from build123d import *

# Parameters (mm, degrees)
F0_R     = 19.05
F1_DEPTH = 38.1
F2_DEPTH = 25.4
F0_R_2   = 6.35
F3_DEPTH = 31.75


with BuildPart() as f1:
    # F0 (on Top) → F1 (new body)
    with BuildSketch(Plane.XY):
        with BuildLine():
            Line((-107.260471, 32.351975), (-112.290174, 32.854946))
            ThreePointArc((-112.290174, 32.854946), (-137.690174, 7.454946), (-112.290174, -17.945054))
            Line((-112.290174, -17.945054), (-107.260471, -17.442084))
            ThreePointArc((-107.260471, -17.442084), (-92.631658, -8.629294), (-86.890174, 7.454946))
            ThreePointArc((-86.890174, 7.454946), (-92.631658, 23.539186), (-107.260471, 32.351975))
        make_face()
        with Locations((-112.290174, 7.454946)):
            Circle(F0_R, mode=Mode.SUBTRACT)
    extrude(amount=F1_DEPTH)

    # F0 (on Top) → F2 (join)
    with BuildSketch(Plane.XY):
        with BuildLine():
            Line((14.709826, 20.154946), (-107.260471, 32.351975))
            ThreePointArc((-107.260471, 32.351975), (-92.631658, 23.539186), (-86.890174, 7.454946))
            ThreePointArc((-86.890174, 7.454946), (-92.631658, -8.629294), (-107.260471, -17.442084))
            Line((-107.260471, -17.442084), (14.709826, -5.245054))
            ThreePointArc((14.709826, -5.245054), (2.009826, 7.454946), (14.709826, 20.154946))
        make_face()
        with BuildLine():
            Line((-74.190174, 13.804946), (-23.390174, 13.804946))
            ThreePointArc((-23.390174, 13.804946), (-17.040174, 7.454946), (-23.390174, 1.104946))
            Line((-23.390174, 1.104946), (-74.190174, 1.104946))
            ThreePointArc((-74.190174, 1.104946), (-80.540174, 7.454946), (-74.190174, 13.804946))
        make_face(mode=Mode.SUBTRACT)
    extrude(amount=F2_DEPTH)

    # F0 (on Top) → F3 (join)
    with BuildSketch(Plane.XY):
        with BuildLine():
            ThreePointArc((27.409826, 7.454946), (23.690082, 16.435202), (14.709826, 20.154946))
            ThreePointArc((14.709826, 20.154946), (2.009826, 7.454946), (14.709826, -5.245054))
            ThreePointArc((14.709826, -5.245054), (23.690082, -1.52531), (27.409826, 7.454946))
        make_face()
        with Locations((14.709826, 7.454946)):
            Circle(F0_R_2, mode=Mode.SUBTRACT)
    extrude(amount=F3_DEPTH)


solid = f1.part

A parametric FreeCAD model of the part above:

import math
import FreeCAD as App
import Part
import Sketcher
from FreeCAD import Vector
Q = App.Units.Quantity

doc = App.newDocument("Part")
body = doc.addObject("PartDesign::Body", "Body")

# Sketch on XY plane
sketch1 = body.newObject("Sketcher::SketchObject", "Sketch")
sketch1.AttachmentSupport = (doc.getObject("XY_Plane"), [""])
sketch1.MapMode = "FlatFace"
sketch1.addGeometry([
    Part.LineSegment(Vector(-107, 32, 0), Vector(-112, 33, 0)),  # 0
    Part.ArcOfCircle(Part.Circle(Vector(-112, 7, 0), Vector(0, 0, 1), 25), math.radians(90), math.radians(270)),  # 1
    Part.LineSegment(Vector(-112, -18, 0), Vector(-107, -17, 0)),  # 2
    Part.ArcOfCircle(Part.Circle(Vector(-112, 7, 0), Vector(0, 0, 1), 25), math.radians(-79), math.radians(0)),  # 3
    Part.ArcOfCircle(Part.Circle(Vector(-112, 7, 0), Vector(0, 0, 1), 25), math.radians(0), math.radians(79)),  # 4
    Part.Circle(Vector(-112, 7, 0), Vector(0, 0, 1), 19),  # 5
], False)
sketch1.addConstraint([
    Sketcher.Constraint("Coincident", 0, 2, 1, 1),
    Sketcher.Constraint("Coincident", 1, 2, 2, 1),
    Sketcher.Constraint("Coincident", 2, 2, 3, 1),
    Sketcher.Constraint("Tangent", 3, 2, 4, 1),
    Sketcher.Constraint("Coincident", 4, 2, 0, 1),
    Sketcher.Constraint("Coincident", 3, 3, 1, 3),
    Sketcher.Constraint("Coincident", 5, 3, 1, 3),
    Sketcher.Constraint("Equal", 1, 3),
    Sketcher.Constraint("Horizontal", 5, 3, 3, 2),
    Sketcher.Constraint("Vertical", 5, 3, 0, 2),
    Sketcher.Constraint("Vertical", 0, 2, 1, 2),
    Sketcher.Constraint("Vertical", 2, 2, 4, 2),
    Sketcher.Constraint("Equal", 0, 2),
    Sketcher.Constraint("Radius", 1, Q("1 in")),
    Sketcher.Constraint("Diameter", 5, Q("1.5 in")),
    Sketcher.Constraint("DistanceY", -1, 1, 4, 2, Q("1.2736998 in")),
    Sketcher.Constraint("DistanceX", 3, 3, 2, 2, 5.029702),
    Sketcher.Constraint("DistanceX", 4, 3, -1, 1, 112.290171),
])
pad1 = body.newObject("PartDesign::Pad", "Pad")
pad1.Profile = sketch1
pad1.Length = Q("1.5 in")

# Sketch on XY plane
sketch2 = body.newObject("Sketcher::SketchObject", "Sketch001")
sketch2.AttachmentSupport = (doc.getObject("XY_Plane"), [""])
sketch2.MapMode = "FlatFace"
sketch2.addGeometry([
    Part.LineSegment(Vector(15, 20, 0), Vector(-107, 32, 0)),  # 0
    Part.ArcOfCircle(Part.Circle(Vector(-112, 7, 0), Vector(0, 0, 1), 25), math.radians(0), math.radians(79)),  # 1
    Part.ArcOfCircle(Part.Circle(Vector(-112, 7, 0), Vector(0, 0, 1), 25), math.radians(-79), math.radians(0)),  # 2
    Part.LineSegment(Vector(-107, -17, 0), Vector(15, -5, 0)),  # 3
    Part.ArcOfCircle(Part.Circle(Vector(15, 7, 0), Vector(0, 0, 1), 13), math.radians(90), math.radians(270)),  # 4
    Part.ArcOfCircle(Part.Circle(Vector(-74, 7, 0), Vector(0, 0, 1), 6), math.radians(90), math.radians(270)),  # 5
    Part.LineSegment(Vector(-74, 14, 0), Vector(-23, 14, 0)),  # 6
    Part.ArcOfCircle(Part.Circle(Vector(-23, 7, 0), Vector(0, 0, 1), 6), math.radians(-90), math.radians(90)),  # 7
    Part.LineSegment(Vector(-23, 1, 0), Vector(-74, 1, 0)),  # 8
], False)
sketch2.addConstraint([
    Sketcher.Constraint("Coincident", 0, 2, 1, 2),
    Sketcher.Constraint("Tangent", 1, 1, 2, 2),
    Sketcher.Constraint("Coincident", 2, 1, 3, 1),
    Sketcher.Constraint("Coincident", 3, 2, 4, 2),
    Sketcher.Constraint("Coincident", 4, 1, 0, 1),
    Sketcher.Constraint("Tangent", 5, 1, 6, 1),
    Sketcher.Constraint("Tangent", 6, 2, 7, 2),
    Sketcher.Constraint("Tangent", 7, 1, 8, 1),
    Sketcher.Constraint("Tangent", 8, 2, 5, 2),
    Sketcher.Constraint("Horizontal", 6),
    Sketcher.Constraint("Horizontal", 8),
    Sketcher.Constraint("Horizontal", 2, 3, 4, 3),
    Sketcher.Constraint("Horizontal", 4, 3, 5, 3),
    Sketcher.Constraint("Horizontal", 7, 3, 1, 1),
    Sketcher.Constraint("Vertical", 0, 2, 2, 1),
    Sketcher.Constraint("Vertical", 4, 3, 3, 2),
    Sketcher.Constraint("Vertical", 3, 2, 4, 1),
    Sketcher.Constraint("Equal", 0, 3),
    Sketcher.Constraint("Radius", 1, Q("0.9999999 in")),
    Sketcher.Constraint("Radius", 4, Q("0.5 in")),
    Sketcher.Constraint("DistanceX", 6, 1, 6, 2, Q("2 in")),
    Sketcher.Constraint("Radius", 5, Q("0.25 in")),
    Sketcher.Constraint("DistanceX", 1, 3, 4, 3, Q("4.9999999 in")),
    Sketcher.Constraint("DistanceX", 1, 3, 5, 3, Q("1.4999999 in")),
    Sketcher.Constraint("DistanceY", -1, 1, 0, 2, Q("1.2736998 in")),
    Sketcher.Constraint("DistanceX", 1, 3, 0, 2, 5.0297),
    Sketcher.Constraint("DistanceX", 1, 3, -1, 1, 112.290171),
])
pad2 = body.newObject("PartDesign::Pad", "Pad001")
pad2.Profile = sketch2
pad2.Length = Q("1 in")

# Sketch on XY plane
sketch3 = body.newObject("Sketcher::SketchObject", "Sketch002")
sketch3.AttachmentSupport = (doc.getObject("XY_Plane"), [""])
sketch3.MapMode = "FlatFace"
sketch3.addGeometry([
    Part.ArcOfCircle(Part.Circle(Vector(15, 7, 0), Vector(0, 0, 1), 13), math.radians(0), math.radians(90)),
    Part.ArcOfCircle(Part.Circle(Vector(15, 7, 0), Vector(0, 0, 1), 13), math.radians(90), math.radians(270)),
    Part.ArcOfCircle(Part.Circle(Vector(15, 7, 0), Vector(0, 0, 1), 13), math.radians(-90), math.radians(0)),
    Part.Circle(Vector(15, 7, 0), Vector(0, 0, 1), 6),
], False)
sketch3.addConstraint([
    Sketcher.Constraint("Tangent", 0, 2, 1, 1),
    Sketcher.Constraint("Tangent", 1, 2, 2, 1),
    Sketcher.Constraint("Tangent", 2, 2, 0, 1),
    Sketcher.Constraint("Coincident", 3, 3, 0, 3),
    Sketcher.Constraint("Horizontal", 3, 3, 2, 2),
    Sketcher.Constraint("Vertical", 3, 3, 0, 2),
    Sketcher.Constraint("Vertical", 0, 2, 1, 2),
    Sketcher.Constraint("Diameter", 3, Q("0.5 in")),
    Sketcher.Constraint("Radius", 0, Q("0.5 in")),
    Sketcher.Constraint("DistanceX", -1, 1, 0, 3, 14.709826),
    Sketcher.Constraint("DistanceY", -1, 1, 0, 3, 7.454946),
])
pad3 = body.newObject("PartDesign::Pad", "Pad002")
pad3.Profile = sketch3
pad3.Length = Q("1.25 in")

doc.recompute()
